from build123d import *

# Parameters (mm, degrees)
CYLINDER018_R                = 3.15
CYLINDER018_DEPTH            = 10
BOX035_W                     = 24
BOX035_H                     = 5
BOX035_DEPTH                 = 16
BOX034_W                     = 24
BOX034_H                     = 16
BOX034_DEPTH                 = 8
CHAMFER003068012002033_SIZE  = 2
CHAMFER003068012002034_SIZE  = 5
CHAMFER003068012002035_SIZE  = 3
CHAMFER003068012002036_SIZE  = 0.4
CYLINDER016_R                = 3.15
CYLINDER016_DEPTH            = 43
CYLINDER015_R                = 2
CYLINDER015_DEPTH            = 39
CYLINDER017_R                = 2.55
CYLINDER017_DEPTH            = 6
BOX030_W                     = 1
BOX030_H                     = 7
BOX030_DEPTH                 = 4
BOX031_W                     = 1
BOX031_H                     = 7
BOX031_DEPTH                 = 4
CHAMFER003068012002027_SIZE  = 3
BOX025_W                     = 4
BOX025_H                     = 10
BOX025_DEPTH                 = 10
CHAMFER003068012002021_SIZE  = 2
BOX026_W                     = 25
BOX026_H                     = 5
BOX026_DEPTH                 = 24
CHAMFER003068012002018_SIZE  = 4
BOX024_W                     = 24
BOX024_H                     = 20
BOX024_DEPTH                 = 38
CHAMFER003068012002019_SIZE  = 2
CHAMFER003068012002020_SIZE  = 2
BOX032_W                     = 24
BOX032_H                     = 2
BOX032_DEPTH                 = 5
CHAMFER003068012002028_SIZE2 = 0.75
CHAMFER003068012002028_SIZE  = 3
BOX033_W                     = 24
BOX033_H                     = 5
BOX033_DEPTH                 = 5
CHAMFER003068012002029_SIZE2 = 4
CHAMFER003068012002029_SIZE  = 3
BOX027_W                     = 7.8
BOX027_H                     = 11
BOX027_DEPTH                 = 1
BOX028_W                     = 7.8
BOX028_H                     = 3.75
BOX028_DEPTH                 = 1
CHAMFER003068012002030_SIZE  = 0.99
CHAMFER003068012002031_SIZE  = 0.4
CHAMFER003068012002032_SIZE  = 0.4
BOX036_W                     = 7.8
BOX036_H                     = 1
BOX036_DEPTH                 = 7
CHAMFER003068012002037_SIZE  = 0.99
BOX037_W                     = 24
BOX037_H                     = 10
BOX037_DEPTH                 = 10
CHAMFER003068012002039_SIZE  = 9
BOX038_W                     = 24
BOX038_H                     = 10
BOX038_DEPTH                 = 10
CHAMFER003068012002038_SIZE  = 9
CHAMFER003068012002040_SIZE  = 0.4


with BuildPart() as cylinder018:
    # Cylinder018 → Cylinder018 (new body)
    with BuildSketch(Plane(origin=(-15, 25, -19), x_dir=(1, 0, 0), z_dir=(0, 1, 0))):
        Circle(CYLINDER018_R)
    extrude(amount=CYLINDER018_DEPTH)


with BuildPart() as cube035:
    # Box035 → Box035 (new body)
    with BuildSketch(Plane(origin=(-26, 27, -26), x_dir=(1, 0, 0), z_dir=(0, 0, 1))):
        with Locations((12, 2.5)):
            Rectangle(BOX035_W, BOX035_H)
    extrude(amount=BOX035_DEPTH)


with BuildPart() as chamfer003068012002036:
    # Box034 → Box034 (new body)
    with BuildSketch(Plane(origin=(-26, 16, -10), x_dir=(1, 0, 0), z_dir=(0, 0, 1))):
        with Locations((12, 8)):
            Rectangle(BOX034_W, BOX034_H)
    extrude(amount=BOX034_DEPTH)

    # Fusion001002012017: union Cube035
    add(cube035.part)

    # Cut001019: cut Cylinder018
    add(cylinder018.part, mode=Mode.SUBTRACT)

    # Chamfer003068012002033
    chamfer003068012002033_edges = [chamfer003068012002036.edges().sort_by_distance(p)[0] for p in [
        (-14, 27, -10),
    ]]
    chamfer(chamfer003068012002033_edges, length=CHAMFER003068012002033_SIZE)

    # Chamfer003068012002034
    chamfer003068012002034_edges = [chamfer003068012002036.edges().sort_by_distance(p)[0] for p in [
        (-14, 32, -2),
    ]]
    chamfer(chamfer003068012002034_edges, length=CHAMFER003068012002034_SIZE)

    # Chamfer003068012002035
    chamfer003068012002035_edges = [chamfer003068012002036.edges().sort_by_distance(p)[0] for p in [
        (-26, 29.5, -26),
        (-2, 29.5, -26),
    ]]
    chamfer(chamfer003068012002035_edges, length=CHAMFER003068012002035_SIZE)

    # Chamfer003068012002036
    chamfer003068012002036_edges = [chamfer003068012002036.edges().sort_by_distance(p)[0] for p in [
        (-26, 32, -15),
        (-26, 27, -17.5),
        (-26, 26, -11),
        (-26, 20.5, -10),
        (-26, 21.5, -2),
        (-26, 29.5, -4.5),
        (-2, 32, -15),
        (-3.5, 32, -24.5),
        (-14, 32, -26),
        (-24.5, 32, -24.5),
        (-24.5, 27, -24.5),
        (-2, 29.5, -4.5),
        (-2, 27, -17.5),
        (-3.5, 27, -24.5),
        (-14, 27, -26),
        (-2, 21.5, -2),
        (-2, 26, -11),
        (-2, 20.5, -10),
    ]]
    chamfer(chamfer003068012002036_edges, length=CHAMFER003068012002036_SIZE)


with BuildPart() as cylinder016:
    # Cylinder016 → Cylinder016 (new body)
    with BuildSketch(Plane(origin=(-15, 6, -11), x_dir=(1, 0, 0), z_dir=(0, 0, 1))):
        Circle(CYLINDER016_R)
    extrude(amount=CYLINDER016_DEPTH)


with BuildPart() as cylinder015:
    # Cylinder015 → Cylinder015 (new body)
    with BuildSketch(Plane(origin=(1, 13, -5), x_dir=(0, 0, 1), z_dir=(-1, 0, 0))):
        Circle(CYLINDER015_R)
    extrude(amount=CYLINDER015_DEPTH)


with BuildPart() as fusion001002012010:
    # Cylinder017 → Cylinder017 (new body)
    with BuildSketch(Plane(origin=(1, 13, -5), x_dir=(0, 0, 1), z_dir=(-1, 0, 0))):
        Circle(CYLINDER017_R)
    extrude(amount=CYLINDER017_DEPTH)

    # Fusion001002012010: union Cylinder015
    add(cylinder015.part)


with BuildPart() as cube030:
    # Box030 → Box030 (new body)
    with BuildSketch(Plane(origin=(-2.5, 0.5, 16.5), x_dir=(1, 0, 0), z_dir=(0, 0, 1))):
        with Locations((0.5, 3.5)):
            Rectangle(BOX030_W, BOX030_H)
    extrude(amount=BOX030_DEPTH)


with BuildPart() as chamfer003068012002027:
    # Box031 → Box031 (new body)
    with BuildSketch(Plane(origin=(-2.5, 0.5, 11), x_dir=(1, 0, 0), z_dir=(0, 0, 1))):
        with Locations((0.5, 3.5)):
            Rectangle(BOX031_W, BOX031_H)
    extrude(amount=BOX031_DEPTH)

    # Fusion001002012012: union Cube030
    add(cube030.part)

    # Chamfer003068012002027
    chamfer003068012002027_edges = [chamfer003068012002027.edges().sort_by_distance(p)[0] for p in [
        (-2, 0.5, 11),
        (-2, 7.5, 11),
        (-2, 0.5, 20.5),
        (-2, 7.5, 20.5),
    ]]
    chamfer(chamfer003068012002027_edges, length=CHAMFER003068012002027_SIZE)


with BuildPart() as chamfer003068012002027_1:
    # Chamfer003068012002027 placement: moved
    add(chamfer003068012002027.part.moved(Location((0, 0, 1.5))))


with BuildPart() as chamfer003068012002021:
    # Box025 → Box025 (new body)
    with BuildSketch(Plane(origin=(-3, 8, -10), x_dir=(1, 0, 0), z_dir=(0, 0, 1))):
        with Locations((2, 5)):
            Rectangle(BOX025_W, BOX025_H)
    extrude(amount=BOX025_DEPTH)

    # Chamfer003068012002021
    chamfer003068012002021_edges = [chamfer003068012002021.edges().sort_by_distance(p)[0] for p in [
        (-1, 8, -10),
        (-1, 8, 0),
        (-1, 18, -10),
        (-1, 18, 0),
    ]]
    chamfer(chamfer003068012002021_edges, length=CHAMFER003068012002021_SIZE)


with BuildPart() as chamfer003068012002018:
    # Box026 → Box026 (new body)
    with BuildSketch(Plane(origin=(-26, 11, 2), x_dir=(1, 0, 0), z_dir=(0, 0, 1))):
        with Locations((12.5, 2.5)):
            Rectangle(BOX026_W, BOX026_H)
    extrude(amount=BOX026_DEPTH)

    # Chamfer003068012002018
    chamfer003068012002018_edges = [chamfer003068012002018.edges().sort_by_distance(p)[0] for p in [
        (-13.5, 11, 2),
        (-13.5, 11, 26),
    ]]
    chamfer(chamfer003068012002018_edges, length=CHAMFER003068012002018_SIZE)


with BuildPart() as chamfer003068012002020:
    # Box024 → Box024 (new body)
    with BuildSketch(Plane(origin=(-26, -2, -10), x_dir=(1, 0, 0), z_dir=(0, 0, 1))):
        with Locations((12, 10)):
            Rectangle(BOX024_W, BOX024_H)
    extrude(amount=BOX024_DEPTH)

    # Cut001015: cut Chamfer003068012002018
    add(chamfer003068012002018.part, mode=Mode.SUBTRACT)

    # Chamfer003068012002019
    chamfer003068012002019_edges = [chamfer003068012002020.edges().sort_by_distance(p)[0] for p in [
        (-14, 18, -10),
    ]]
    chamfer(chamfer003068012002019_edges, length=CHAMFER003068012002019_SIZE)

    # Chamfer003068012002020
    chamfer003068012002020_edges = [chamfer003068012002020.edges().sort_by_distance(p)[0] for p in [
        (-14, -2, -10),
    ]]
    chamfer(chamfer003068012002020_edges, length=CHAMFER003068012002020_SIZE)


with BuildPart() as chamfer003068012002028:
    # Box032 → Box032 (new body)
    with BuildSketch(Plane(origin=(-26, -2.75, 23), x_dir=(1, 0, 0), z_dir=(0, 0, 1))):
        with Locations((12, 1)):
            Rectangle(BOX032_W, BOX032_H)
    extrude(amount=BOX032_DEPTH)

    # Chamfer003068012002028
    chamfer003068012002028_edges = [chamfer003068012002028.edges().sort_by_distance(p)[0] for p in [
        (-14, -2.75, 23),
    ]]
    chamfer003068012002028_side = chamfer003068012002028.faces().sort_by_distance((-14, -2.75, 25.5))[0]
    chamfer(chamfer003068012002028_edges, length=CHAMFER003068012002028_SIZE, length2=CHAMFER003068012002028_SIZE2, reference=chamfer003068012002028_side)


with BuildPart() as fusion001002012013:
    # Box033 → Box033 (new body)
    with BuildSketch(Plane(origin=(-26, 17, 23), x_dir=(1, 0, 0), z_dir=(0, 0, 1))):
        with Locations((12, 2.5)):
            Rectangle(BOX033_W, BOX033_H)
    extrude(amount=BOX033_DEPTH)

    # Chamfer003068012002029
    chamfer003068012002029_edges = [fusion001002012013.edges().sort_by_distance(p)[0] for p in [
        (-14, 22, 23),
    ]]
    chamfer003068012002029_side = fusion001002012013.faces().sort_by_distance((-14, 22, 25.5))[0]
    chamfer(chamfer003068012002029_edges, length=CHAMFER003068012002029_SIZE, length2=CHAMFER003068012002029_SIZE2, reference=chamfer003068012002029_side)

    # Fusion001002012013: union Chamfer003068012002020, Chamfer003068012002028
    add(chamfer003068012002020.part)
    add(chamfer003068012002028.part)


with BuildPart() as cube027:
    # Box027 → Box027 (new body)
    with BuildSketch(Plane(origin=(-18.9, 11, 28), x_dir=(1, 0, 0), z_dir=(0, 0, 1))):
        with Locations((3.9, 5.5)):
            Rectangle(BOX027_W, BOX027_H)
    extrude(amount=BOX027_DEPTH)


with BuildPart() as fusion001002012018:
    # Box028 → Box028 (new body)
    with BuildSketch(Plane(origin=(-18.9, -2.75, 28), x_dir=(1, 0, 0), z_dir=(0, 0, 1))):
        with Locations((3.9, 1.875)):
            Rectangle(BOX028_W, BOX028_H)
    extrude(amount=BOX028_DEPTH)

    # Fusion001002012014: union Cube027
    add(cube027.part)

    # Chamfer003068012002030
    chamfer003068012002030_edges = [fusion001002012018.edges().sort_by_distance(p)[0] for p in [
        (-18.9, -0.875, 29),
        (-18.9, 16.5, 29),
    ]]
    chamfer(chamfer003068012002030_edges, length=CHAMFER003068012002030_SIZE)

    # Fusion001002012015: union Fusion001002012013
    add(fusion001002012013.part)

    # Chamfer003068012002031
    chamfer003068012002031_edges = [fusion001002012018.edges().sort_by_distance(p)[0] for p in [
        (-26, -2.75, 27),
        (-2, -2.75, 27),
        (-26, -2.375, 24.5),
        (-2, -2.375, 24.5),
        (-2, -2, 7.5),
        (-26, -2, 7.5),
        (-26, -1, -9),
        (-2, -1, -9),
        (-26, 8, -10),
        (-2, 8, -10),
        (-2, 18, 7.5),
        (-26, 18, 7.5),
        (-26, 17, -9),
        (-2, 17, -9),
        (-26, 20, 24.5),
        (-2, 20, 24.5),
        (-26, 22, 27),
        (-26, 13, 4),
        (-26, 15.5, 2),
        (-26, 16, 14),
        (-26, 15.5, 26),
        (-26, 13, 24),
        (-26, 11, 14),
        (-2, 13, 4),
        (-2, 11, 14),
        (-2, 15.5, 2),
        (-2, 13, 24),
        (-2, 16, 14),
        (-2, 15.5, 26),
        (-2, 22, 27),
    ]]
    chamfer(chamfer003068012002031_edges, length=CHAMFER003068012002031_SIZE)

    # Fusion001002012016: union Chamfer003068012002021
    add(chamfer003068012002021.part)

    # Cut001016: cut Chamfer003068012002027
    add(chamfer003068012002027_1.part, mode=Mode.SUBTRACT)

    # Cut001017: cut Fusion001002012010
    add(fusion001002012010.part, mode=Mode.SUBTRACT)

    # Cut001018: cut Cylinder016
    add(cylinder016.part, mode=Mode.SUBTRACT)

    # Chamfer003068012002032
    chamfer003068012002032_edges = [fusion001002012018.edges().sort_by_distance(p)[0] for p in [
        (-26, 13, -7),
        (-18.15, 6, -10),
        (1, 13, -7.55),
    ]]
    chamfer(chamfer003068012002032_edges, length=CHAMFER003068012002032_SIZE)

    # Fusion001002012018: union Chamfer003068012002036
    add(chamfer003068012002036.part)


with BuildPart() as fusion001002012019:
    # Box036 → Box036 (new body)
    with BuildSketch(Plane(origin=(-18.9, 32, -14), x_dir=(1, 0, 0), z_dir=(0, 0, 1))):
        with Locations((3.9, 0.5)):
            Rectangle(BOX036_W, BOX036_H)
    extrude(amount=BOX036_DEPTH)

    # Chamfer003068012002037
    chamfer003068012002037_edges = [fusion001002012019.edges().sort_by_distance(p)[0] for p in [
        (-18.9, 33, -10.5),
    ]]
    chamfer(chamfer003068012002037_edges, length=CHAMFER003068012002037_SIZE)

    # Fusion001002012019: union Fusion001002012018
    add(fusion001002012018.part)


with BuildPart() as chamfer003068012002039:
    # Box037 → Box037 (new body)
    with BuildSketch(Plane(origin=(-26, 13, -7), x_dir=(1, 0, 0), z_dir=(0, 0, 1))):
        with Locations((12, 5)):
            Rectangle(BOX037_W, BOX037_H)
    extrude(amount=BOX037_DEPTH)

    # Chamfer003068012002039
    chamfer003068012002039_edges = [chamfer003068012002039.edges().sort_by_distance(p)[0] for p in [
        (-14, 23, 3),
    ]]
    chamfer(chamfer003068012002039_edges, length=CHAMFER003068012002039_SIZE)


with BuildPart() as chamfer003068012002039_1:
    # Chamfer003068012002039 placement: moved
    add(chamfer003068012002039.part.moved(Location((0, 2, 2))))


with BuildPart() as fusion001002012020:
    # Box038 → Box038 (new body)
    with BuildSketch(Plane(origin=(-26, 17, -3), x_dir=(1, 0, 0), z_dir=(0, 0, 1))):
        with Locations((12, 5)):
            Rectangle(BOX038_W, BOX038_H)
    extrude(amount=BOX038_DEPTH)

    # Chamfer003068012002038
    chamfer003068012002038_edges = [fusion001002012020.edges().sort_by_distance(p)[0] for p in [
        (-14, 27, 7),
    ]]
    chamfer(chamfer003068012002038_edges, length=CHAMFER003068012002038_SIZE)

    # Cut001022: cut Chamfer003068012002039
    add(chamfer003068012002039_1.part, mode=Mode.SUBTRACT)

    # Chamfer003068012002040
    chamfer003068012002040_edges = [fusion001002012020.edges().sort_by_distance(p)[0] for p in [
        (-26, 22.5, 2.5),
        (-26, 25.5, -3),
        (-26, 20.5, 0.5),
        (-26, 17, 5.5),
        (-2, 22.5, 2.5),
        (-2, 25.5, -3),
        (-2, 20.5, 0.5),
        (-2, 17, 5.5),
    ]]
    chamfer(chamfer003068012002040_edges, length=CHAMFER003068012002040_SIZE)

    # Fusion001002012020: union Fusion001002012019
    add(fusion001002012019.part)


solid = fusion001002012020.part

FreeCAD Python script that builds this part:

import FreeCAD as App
import Part
import Sketcher

V = App.Vector


def edges_at(feature, points):
    """Names of the edges that pass closest to the given points."""
    edges = feature.Shape.Edges
    near = lambda p: min(range(len(edges)), key=lambda i: edges[i].distToShape(Part.Vertex(*p))[0])
    return sorted({f"Edge{near(p) + 1}" for p in points})

doc = App.newDocument("Part")
params = doc.addObject("Spreadsheet::Sheet", "Params")
for row, (alias, value) in enumerate([
    ("sketch1_diameter", "6.3 mm"),
    ("pad1_length", "10 mm"),
    ("sketch2_width", "24 mm"),
    ("sketch2_height", "5 mm"),
    ("pad2_length", "16 mm"),
    ("sketch3_width", "24 mm"),
    ("sketch3_height", "16 mm"),
    ("pad3_length", "8 mm"),
    ("chamfer_size", "2 mm"),
    ("chamfer2_size", "5 mm"),
    ("chamfer3_size", "3 mm"),
    ("chamfer4_size", "0.4 mm"),
    ("sketch4_diameter", "6.3 mm"),
    ("pad4_length", "43 mm"),
    ("sketch5_diameter", "4 mm"),
    ("pad5_length", "39 mm"),
    ("sketch6_diameter", "5.1 mm"),
    ("pad6_length", "6 mm"),
    ("sketch7_width", "1 mm"),
    ("sketch7_height", "7 mm"),
    ("pad7_length", "4 mm"),
    ("sketch8_width", "1 mm"),
    ("sketch8_height", "7 mm"),
    ("pad8_length", "4 mm"),
    ("chamfer5_size", "3 mm"),
    ("sketch9_width", "4 mm"),
    ("sketch9_height", "10 mm"),
    ("pad9_length", "10 mm"),
    ("chamfer6_size", "2 mm"),
    ("sketch10_width", "25 mm"),
    ("sketch10_height", "5 mm"),
    ("pad10_length", "24 mm"),
    ("chamfer7_size", "4 mm"),
    ("sketch11_width", "24 mm"),
    ("sketch11_height", "20 mm"),
    ("pad11_length", "38 mm"),
    ("chamfer8_size", "2 mm"),
    ("chamfer9_size", "2 mm"),
    ("sketch12_width", "24 mm"),
    ("sketch12_height", "2 mm"),
    ("pad12_length", "5 mm"),
    ("chamfer10_size", "3 mm"),
    ("chamfer10_size2", "0.75 mm"),
    ("sketch13_width", "24 mm"),
    ("sketch13_height", "5 mm"),
    ("pad13_length", "5 mm"),
    ("chamfer11_size", "3 mm"),
    ("chamfer11_size2", "4 mm"),
    ("sketch14_height", "11 mm"),
    ("sketch14_width", "7.8 mm"),
    ("pad14_length", "1 mm"),
    ("sketch15_width", "7.8 mm"),
    ("sketch15_height", "3.75 mm"),
    ("pad15_length", "1 mm"),
    ("chamfer12_size", "0.99 mm"),
    ("chamfer13_size", "0.4 mm"),
    ("chamfer14_size", "0.4 mm"),
    ("sketch16_height", "1 mm"),
    ("sketch16_width", "7.8 mm"),
    ("pad16_length", "7 mm"),
    ("chamfer15_size", "0.99 mm"),
    ("sketch17_width", "24 mm"),
    ("sketch17_height", "10 mm"),
    ("pad17_length", "10 mm"),
    ("chamfer16_size", "9 mm"),
    ("sketch18_width", "24 mm"),
    ("sketch18_height", "10 mm"),
    ("pad18_length", "10 mm"),
    ("chamfer17_size", "9 mm"),
    ("chamfer18_size", "0.4 mm"),
], start=1):
    params.set(f"A{row}", alias)
    params.set(f"B{row}", "=" + value)
    params.setAlias(f"B{row}", alias)

body = doc.addObject("PartDesign::Body", "Body")

sketch1 = body.newObject("Sketcher::SketchObject", "Sketch")
sketch1.AttachmentSupport = (doc.getObject("XZ_Plane"), [""])
sketch1.MapMode = "FlatFace"
sketch1.AttachmentOffset = App.Placement(V(0, 0, -25), App.Rotation())
sketch1.addGeometry(Part.Circle(V(-15, -19, 0), V(0, 0, 1), 3.15), False)
sketch1.addConstraint(Sketcher.Constraint("Diameter", 0, 6.3))
sketch1.addConstraint(Sketcher.Constraint("DistanceX", 0, 3, -1, 1, 15.0))
sketch1.addConstraint(Sketcher.Constraint("DistanceY", 0, 3, -1, 1, 19.0))
sketch1.setExpression("Constraints[0]", "Params.sketch1_diameter")
pad1 = body.newObject("PartDesign::Pad", "Pad")
pad1.Profile = sketch1
pad1.setExpression("Length", "Params.pad1_length")
pad1.Reversed = True
body2 = doc.addObject("PartDesign::Body", "Body001")

sketch2 = body2.newObject("Sketcher::SketchObject", "Sketch001")
sketch2.AttachmentSupport = (doc.getObject("XY_Plane001"), [""])
sketch2.MapMode = "FlatFace"
sketch2.AttachmentOffset = App.Placement(V(0, 0, -26), App.Rotation())
sketch2.addGeometry(Part.LineSegment(V(-26, 32, 0), V(-26, 27, 0)), False)
sketch2.addGeometry(Part.LineSegment(V(-26, 27, 0), V(-2, 27, 0)), False)
sketch2.addGeometry(Part.LineSegment(V(-2, 27, 0), V(-2, 32, 0)), False)
sketch2.addGeometry(Part.LineSegment(V(-2, 32, 0), V(-26, 32, 0)), False)
sketch2.addConstraint(Sketcher.Constraint("Coincident", 0, 2, 1, 1))
sketch2.addConstraint(Sketcher.Constraint("Coincident", 1, 2, 2, 1))
sketch2.addConstraint(Sketcher.Constraint("Coincident", 2, 2, 3, 1))
sketch2.addConstraint(Sketcher.Constraint("Coincident", 3, 2, 0, 1))
sketch2.addConstraint(Sketcher.Constraint("Vertical", 0))
sketch2.addConstraint(Sketcher.Constraint("Horizontal", 1))
sketch2.addConstraint(Sketcher.Constraint("Vertical", 2))
sketch2.addConstraint(Sketcher.Constraint("Horizontal", 3))
sketch2.addConstraint(Sketcher.Constraint("DistanceX", 1, 1, 1, 2, 24.0))
sketch2.addConstraint(Sketcher.Constraint("DistanceY", 0, 2, 0, 1, 5.0))
sketch2.addConstraint(Sketcher.Constraint("DistanceX", 0, 2, -1, 1, 26.0))
sketch2.addConstraint(Sketcher.Constraint("DistanceY", -1, 1, 0, 2, 27.0))
sketch2.setExpression("Constraints[8]", "Params.sketch2_width")
sketch2.setExpression("Constraints[9]", "Params.sketch2_height")
pad2 = body2.newObject("PartDesign::Pad", "Pad001")
pad2.Profile = sketch2
pad2.setExpression("Length", "Params.pad2_length")
body3 = doc.addObject("PartDesign::Body", "Body002")

sketch3 = body3.newObject("Sketcher::SketchObject", "Sketch002")
sketch3.AttachmentSupport = (doc.getObject("XY_Plane002"), [""])
sketch3.MapMode = "FlatFace"
sketch3.AttachmentOffset = App.Placement(V(0, 0, -10), App.Rotation())
sketch3.addGeometry(Part.LineSegment(V(-26, 32, 0), V(-26, 16, 0)), False)
sketch3.addGeometry(Part.LineSegment(V(-26, 16, 0), V(-2, 16, 0)), False)
sketch3.addGeometry(Part.LineSegment(V(-2, 16, 0), V(-2, 32, 0)), False)
sketch3.addGeometry(Part.LineSegment(V(-2, 32, 0), V(-26, 32, 0)), False)
sketch3.addConstraint(Sketcher.Constraint("Coincident", 0, 2, 1, 1))
sketch3.addConstraint(Sketcher.Constraint("Coincident", 1, 2, 2, 1))
sketch3.addConstraint(Sketcher.Constraint("Coincident", 2, 2, 3, 1))
sketch3.addConstraint(Sketcher.Constraint("Coincident", 3, 2, 0, 1))
sketch3.addConstraint(Sketcher.Constraint("Vertical", 0))
sketch3.addConstraint(Sketcher.Constraint("Horizontal", 1))
sketch3.addConstraint(Sketcher.Constraint("Vertical", 2))
sketch3.addConstraint(Sketcher.Constraint("Horizontal", 3))
sketch3.addConstraint(Sketcher.Constraint("DistanceX", 1, 1, 1, 2, 24.0))
sketch3.addConstraint(Sketcher.Constraint("DistanceY", 0, 2, 0, 1, 16.0))
sketch3.addConstraint(Sketcher.Constraint("DistanceX", 0, 2, -1, 1, 26.0))
sketch3.addConstraint(Sketcher.Constraint("DistanceY", -1, 1, 0, 2, 16.0))
sketch3.setExpression("Constraints[8]", "Params.sketch3_width")
sketch3.setExpression("Constraints[9]", "Params.sketch3_height")
pad3 = body3.newObject("PartDesign::Pad", "Pad002")
pad3.Profile = sketch3
pad3.setExpression("Length", "Params.pad3_length")
doc.recompute()

boolean = body3.newObject("PartDesign::Boolean", "Boolean")
boolean.Type = "Fuse"
boolean.addObjects([body2])
doc.recompute()

boolean2 = body3.newObject("PartDesign::Boolean", "Boolean001")
boolean2.Type = "Cut"
boolean2.addObjects([body])
doc.recompute()

chamfer = body3.newObject("PartDesign::Chamfer", "Chamfer")
chamfer.Base = (boolean2, edges_at(boolean2, [(-14, 27, -10)]))
chamfer.setExpression("Size", "Params.chamfer_size")
doc.recompute()

chamfer2 = body3.newObject("PartDesign::Chamfer", "Chamfer001")
chamfer2.Base = (chamfer, edges_at(chamfer, [(-14, 32, -2)]))
chamfer2.setExpression("Size", "Params.chamfer2_size")
doc.recompute()

chamfer3 = body3.newObject("PartDesign::Chamfer", "Chamfer002")
chamfer3.Base = (chamfer2, edges_at(chamfer2, [(-26, 29.5, -26), (-2, 29.5, -26)]))
chamfer3.setExpression("Size", "Params.chamfer3_size")
doc.recompute()

chamfer4 = body3.newObject("PartDesign::Chamfer", "Chamfer003")
chamfer4.Base = (chamfer3, edges_at(chamfer3, [
    (-26, 32, -15),
    (-26, 27, -17.5),
    (-26, 26, -11),
    (-26, 20.5, -10),
    (-26, 21.5, -2),
    (-26, 29.5, -4.5),
    (-2, 32, -15),
    (-3.5, 32, -24.5),
    (-14, 32, -26),
    (-24.5, 32, -24.5),
    (-24.5, 27, -24.5),
    (-2, 29.5, -4.5),
    (-2, 27, -17.5),
    (-3.5, 27, -24.5),
    (-14, 27, -26),
    (-2, 21.5, -2),
    (-2, 26, -11),
    (-2, 20.5, -10),
]))
chamfer4.setExpression("Size", "Params.chamfer4_size")
body4 = doc.addObject("PartDesign::Body", "Body003")

sketch4 = body4.newObject("Sketcher::SketchObject", "Sketch003")
sketch4.AttachmentSupport = (doc.getObject("XY_Plane003"), [""])
sketch4.MapMode = "FlatFace"
sketch4.AttachmentOffset = App.Placement(V(0, 0, -11), App.Rotation())
sketch4.addGeometry(Part.Circle(V(-15, 6, 0), V(0, 0, 1), 3.15), False)
sketch4.addConstraint(Sketcher.Constraint("Diameter", 0, 6.3))
sketch4.addConstraint(Sketcher.Constraint("DistanceX", 0, 3, -1, 1, 15.0))
sketch4.addConstraint(Sketcher.Constraint("DistanceY", -1, 1, 0, 3, 6.0))
sketch4.setExpression("Constraints[0]", "Params.sketch4_diameter")
pad4 = body4.newObject("PartDesign::Pad", "Pad003")
pad4.Profile = sketch4
pad4.setExpression("Length", "Params.pad4_length")
body5 = doc.addObject("PartDesign::Body", "Body004")

sketch5 = body5.newObject("Sketcher::SketchObject", "Sketch004")
sketch5.AttachmentSupport = (doc.getObject("YZ_Plane004"), [""])
sketch5.MapMode = "FlatFace"
sketch5.AttachmentOffset = App.Placement(V(0, 0, 1), App.Rotation())
sketch5.addGeometry(Part.Circle(V(13, -5, 0), V(0, 0, 1), 2), False)
sketch5.addConstraint(Sketcher.Constraint("Diameter", 0, 4.0))
sketch5.addConstraint(Sketcher.Constraint("DistanceX", -1, 1, 0, 3, 13.0))
sketch5.addConstraint(Sketcher.Constraint("DistanceY", 0, 3, -1, 1, 5.0))
sketch5.setExpression("Constraints[0]", "Params.sketch5_diameter")
pad5 = body5.newObject("PartDesign::Pad", "Pad004")
pad5.Profile = sketch5
pad5.setExpression("Length", "Params.pad5_length")
pad5.Reversed = True
body6 = doc.addObject("PartDesign::Body", "Body005")

sketch6 = body6.newObject("Sketcher::SketchObject", "Sketch005")
sketch6.AttachmentSupport = (doc.getObject("YZ_Plane005"), [""])
sketch6.MapMode = "FlatFace"
sketch6.AttachmentOffset = App.Placement(V(0, 0, 1), App.Rotation())
sketch6.addGeometry(Part.Circle(V(13, -5, 0), V(0, 0, 1), 2.55), False)
sketch6.addConstraint(Sketcher.Constraint("Diameter", 0, 5.1))
sketch6.addConstraint(Sketcher.Constraint("DistanceX", -1, 1, 0, 3, 13.0))
sketch6.addConstraint(Sketcher.Constraint("DistanceY", 0, 3, -1, 1, 5.0))
sketch6.setExpression("Constraints[0]", "Params.sketch6_diameter")
pad6 = body6.newObject("PartDesign::Pad", "Pad005")
pad6.Profile = sketch6
pad6.setExpression("Length", "Params.pad6_length")
pad6.Reversed = True
doc.recompute()

boolean3 = body6.newObject("PartDesign::Boolean", "Boolean002")
boolean3.Type = "Fuse"
boolean3.addObjects([body5])
body7 = doc.addObject("PartDesign::Body", "Body006")

sketch7 = body7.newObject("Sketcher::SketchObject", "Sketch006")
sketch7.AttachmentSupport = (doc.getObject("XY_Plane006"), [""])
sketch7.MapMode = "FlatFace"
sketch7.AttachmentOffset = App.Placement(V(0, 0, 16.5), App.Rotation())
sketch7.addGeometry(Part.LineSegment(V(-2.5, 7.5, 0), V(-2.5, 0.5, 0)), False)
sketch7.addGeometry(Part.LineSegment(V(-2.5, 0.5, 0), V(-1.5, 0.5, 0)), False)
sketch7.addGeometry(Part.LineSegment(V(-1.5, 0.5, 0), V(-1.5, 7.5, 0)), False)
sketch7.addGeometry(Part.LineSegment(V(-1.5, 7.5, 0), V(-2.5, 7.5, 0)), False)
sketch7.addConstraint(Sketcher.Constraint("Coincident", 0, 2, 1, 1))
sketch7.addConstraint(Sketcher.Constraint("Coincident", 1, 2, 2, 1))
sketch7.addConstraint(Sketcher.Constraint("Coincident", 2, 2, 3, 1))
sketch7.addConstraint(Sketcher.Constraint("Coincident", 3, 2, 0, 1))
sketch7.addConstraint(Sketcher.Constraint("Vertical", 0))
sketch7.addConstraint(Sketcher.Constraint("Horizontal", 1))
sketch7.addConstraint(Sketcher.Constraint("Vertical", 2))
sketch7.addConstraint(Sketcher.Constraint("Horizontal", 3))
sketch7.addConstraint(Sketcher.Constraint("DistanceX", 1, 1, 1, 2, 1.0))
sketch7.addConstraint(Sketcher.Constraint("DistanceY", 0, 2, 0, 1, 7.0))
sketch7.addConstraint(Sketcher.Constraint("DistanceX", 0, 2, -1, 1, 2.5))
sketch7.addConstraint(Sketcher.Constraint("DistanceY", -1, 1, 0, 2, 0.5))
sketch7.setExpression("Constraints[8]", "Params.sketch7_width")
sketch7.setExpression("Constraints[9]", "Params.sketch7_height")
pad7 = body7.newObject("PartDesign::Pad", "Pad006")
pad7.Profile = sketch7
pad7.setExpression("Length", "Params.pad7_length")
body8 = doc.addObject("PartDesign::Body", "Body007")
body8.AllowCompound = True

sketch8 = body8.newObject("Sketcher::SketchObject", "Sketch007")
sketch8.AttachmentSupport = (doc.getObject("XY_Plane007"), [""])
sketch8.MapMode = "FlatFace"
sketch8.AttachmentOffset = App.Placement(V(0, 0, 11), App.Rotation())
sketch8.addGeometry(Part.LineSegment(V(-2.5, 7.5, 0), V(-2.5, 0.5, 0)), False)
sketch8.addGeometry(Part.LineSegment(V(-2.5, 0.5, 0), V(-1.5, 0.5, 0)), False)
sketch8.addGeometry(Part.LineSegment(V(-1.5, 0.5, 0), V(-1.5, 7.5, 0)), False)
sketch8.addGeometry(Part.LineSegment(V(-1.5, 7.5, 0), V(-2.5, 7.5, 0)), False)
sketch8.addConstraint(Sketcher.Constraint("Coincident", 0, 2, 1, 1))
sketch8.addConstraint(Sketcher.Constraint("Coincident", 1, 2, 2, 1))
sketch8.addConstraint(Sketcher.Constraint("Coincident", 2, 2, 3, 1))
sketch8.addConstraint(Sketcher.Constraint("Coincident", 3, 2, 0, 1))
sketch8.addConstraint(Sketcher.Constraint("Vertical", 0))
sketch8.addConstraint(Sketcher.Constraint("Horizontal", 1))
sketch8.addConstraint(Sketcher.Constraint("Vertical", 2))
sketch8.addConstraint(Sketcher.Constraint("Horizontal", 3))
sketch8.addConstraint(Sketcher.Constraint("DistanceX", 1, 1, 1, 2, 1.0))
sketch8.addConstraint(Sketcher.Constraint("DistanceY", 0, 2, 0, 1, 7.0))
sketch8.addConstraint(Sketcher.Constraint("DistanceX", 0, 2, -1, 1, 2.5))
sketch8.addConstraint(Sketcher.Constraint("DistanceY", -1, 1, 0, 2, 0.5))
sketch8.setExpression("Constraints[8]", "Params.sketch8_width")
sketch8.setExpression("Constraints[9]", "Params.sketch8_height")
pad8 = body8.newObject("PartDesign::Pad", "Pad007")
pad8.Profile = sketch8
pad8.setExpression("Length", "Params.pad8_length")
doc.recompute()

boolean4 = body8.newObject("PartDesign::Boolean", "Boolean003")
boolean4.Type = "Fuse"
boolean4.addObjects([body7])
doc.recompute()

chamfer5 = body8.newObject("PartDesign::Chamfer", "Chamfer004")
chamfer5.Base = (boolean4, edges_at(boolean4, [
    (-2, 0.5, 11),
    (-2, 7.5, 11),
    (-2, 0.5, 20.5),
    (-2, 7.5, 20.5),
]))
chamfer5.setExpression("Size", "Params.chamfer5_size")
body9 = doc.addObject("PartDesign::Body", "Body008")
body9.AllowCompound = True
doc.recompute()

body8.Placement = App.Placement(V(0, 0, 1.5), App.Rotation(V(0, 0, 1), 0))
boolean5 = body9.newObject("PartDesign::Boolean", "Boolean004")
boolean5.Type = "Fuse"
boolean5.addObjects([body8])
body10 = doc.addObject("PartDesign::Body", "Body009")

sketch9 = body10.newObject("Sketcher::SketchObject", "Sketch008")
sketch9.AttachmentSupport = (doc.getObject("XY_Plane009"), [""])
sketch9.MapMode = "FlatFace"
sketch9.AttachmentOffset = App.Placement(V(0, 0, -10), App.Rotation())
sketch9.addGeometry(Part.LineSegment(V(-3, 18, 0), V(-3, 8, 0)), False)
sketch9.addGeometry(Part.LineSegment(V(-3, 8, 0), V(1, 8, 0)), False)
sketch9.addGeometry(Part.LineSegment(V(1, 8, 0), V(1, 18, 0)), False)
sketch9.addGeometry(Part.LineSegment(V(1, 18, 0), V(-3, 18, 0)), False)
sketch9.addConstraint(Sketcher.Constraint("Coincident", 0, 2, 1, 1))
sketch9.addConstraint(Sketcher.Constraint("Coincident", 1, 2, 2, 1))
sketch9.addConstraint(Sketcher.Constraint("Coincident", 2, 2, 3, 1))
sketch9.addConstraint(Sketcher.Constraint("Coincident", 3, 2, 0, 1))
sketch9.addConstraint(Sketcher.Constraint("Vertical", 0))
sketch9.addConstraint(Sketcher.Constraint("Horizontal", 1))
sketch9.addConstraint(Sketcher.Constraint("Vertical", 2))
sketch9.addConstraint(Sketcher.Constraint("Horizontal", 3))
sketch9.addConstraint(Sketcher.Constraint("DistanceX", 1, 1, 1, 2, 4.0))
sketch9.addConstraint(Sketcher.Constraint("DistanceY", 0, 2, 0, 1, 10.0))
sketch9.addConstraint(Sketcher.Constraint("DistanceX", 0, 2, -1, 1, 3.0))
sketch9.addConstraint(Sketcher.Constraint("DistanceY", -1, 1, 0, 2, 8.0))
sketch9.setExpression("Constraints[8]", "Params.sketch9_width")
sketch9.setExpression("Constraints[9]", "Params.sketch9_height")
pad9 = body10.newObject("PartDesign::Pad", "Pad008")
pad9.Profile = sketch9
pad9.setExpression("Length", "Params.pad9_length")
doc.recompute()

chamfer6 = body10.newObject("PartDesign::Chamfer", "Chamfer005")
chamfer6.Base = (pad9, edges_at(pad9, [
    (-1, 8, -10),
    (-1, 8, 0),
    (-1, 18, -10),
    (-1, 18, 0),
]))
chamfer6.setExpression("Size", "Params.chamfer6_size")
body11 = doc.addObject("PartDesign::Body", "Body010")

sketch10 = body11.newObject("Sketcher::SketchObject", "Sketch009")
sketch10.AttachmentSupport = (doc.getObject("XY_Plane010"), [""])
sketch10.MapMode = "FlatFace"
sketch10.AttachmentOffset = App.Placement(V(0, 0, 2), App.Rotation())
sketch10.addGeometry(Part.LineSegment(V(-26, 16, 0), V(-26, 11, 0)), False)
sketch10.addGeometry(Part.LineSegment(V(-26, 11, 0), V(-1, 11, 0)), False)
sketch10.addGeometry(Part.LineSegment(V(-1, 11, 0), V(-1, 16, 0)), False)
sketch10.addGeometry(Part.LineSegment(V(-1, 16, 0), V(-26, 16, 0)), False)
sketch10.addConstraint(Sketcher.Constraint("Coincident", 0, 2, 1, 1))
sketch10.addConstraint(Sketcher.Constraint("Coincident", 1, 2, 2, 1))
sketch10.addConstraint(Sketcher.Constraint("Coincident", 2, 2, 3, 1))
sketch10.addConstraint(Sketcher.Constraint("Coincident", 3, 2, 0, 1))
sketch10.addConstraint(Sketcher.Constraint("Vertical", 0))
sketch10.addConstraint(Sketcher.Constraint("Horizontal", 1))
sketch10.addConstraint(Sketcher.Constraint("Vertical", 2))
sketch10.addConstraint(Sketcher.Constraint("Horizontal", 3))
sketch10.addConstraint(Sketcher.Constraint("DistanceX", 1, 1, 1, 2, 25.0))
sketch10.addConstraint(Sketcher.Constraint("DistanceY", 0, 2, 0, 1, 5.0))
sketch10.addConstraint(Sketcher.Constraint("DistanceX", 0, 2, -1, 1, 26.0))
sketch10.addConstraint(Sketcher.Constraint("DistanceY", -1, 1, 0, 2, 11.0))
sketch10.setExpression("Constraints[8]", "Params.sketch10_width")
sketch10.setExpression("Constraints[9]", "Params.sketch10_height")
pad10 = body11.newObject("PartDesign::Pad", "Pad009")
pad10.Profile = sketch10
pad10.setExpression("Length", "Params.pad10_length")
doc.recompute()

chamfer7 = body11.newObject("PartDesign::Chamfer", "Chamfer006")
chamfer7.Base = (pad10, edges_at(pad10, [(-13.5, 11, 2), (-13.5, 11, 26)]))
chamfer7.setExpression("Size", "Params.chamfer7_size")
body12 = doc.addObject("PartDesign::Body", "Body011")

sketch11 = body12.newObject("Sketcher::SketchObject", "Sketch010")
sketch11.AttachmentSupport = (doc.getObject("XY_Plane011"), [""])
sketch11.MapMode = "FlatFace"
sketch11.AttachmentOffset = App.Placement(V(0, 0, -10), App.Rotation())
sketch11.addGeometry(Part.LineSegment(V(-26, 18, 0), V(-26, -2, 0)), False)
sketch11.addGeometry(Part.LineSegment(V(-26, -2, 0), V(-2, -2, 0)), False)
sketch11.addGeometry(Part.LineSegment(V(-2, -2, 0), V(-2, 18, 0)), False)
sketch11.addGeometry(Part.LineSegment(V(-2, 18, 0), V(-26, 18, 0)), False)
sketch11.addConstraint(Sketcher.Constraint("Coincident", 0, 2, 1, 1))
sketch11.addConstraint(Sketcher.Constraint("Coincident", 1, 2, 2, 1))
sketch11.addConstraint(Sketcher.Constraint("Coincident", 2, 2, 3, 1))
sketch11.addConstraint(Sketcher.Constraint("Coincident", 3, 2, 0, 1))
sketch11.addConstraint(Sketcher.Constraint("Vertical", 0))
sketch11.addConstraint(Sketcher.Constraint("Horizontal", 1))
sketch11.addConstraint(Sketcher.Constraint("Vertical", 2))
sketch11.addConstraint(Sketcher.Constraint("Horizontal", 3))
sketch11.addConstraint(Sketcher.Constraint("DistanceX", 1, 1, 1, 2, 24.0))
sketch11.addConstraint(Sketcher.Constraint("DistanceY", 0, 2, 0, 1, 20.0))
sketch11.addConstraint(Sketcher.Constraint("DistanceX", 0, 2, -1, 1, 26.0))
sketch11.addConstraint(Sketcher.Constraint("DistanceY", 0, 2, -1, 1, 2.0))
sketch11.setExpression("Constraints[8]", "Params.sketch11_width")
sketch11.setExpression("Constraints[9]", "Params.sketch11_height")
pad11 = body12.newObject("PartDesign::Pad", "Pad010")
pad11.Profile = sketch11
pad11.setExpression("Length", "Params.pad11_length")
doc.recompute()

boolean6 = body12.newObject("PartDesign::Boolean", "Boolean005")
boolean6.Type = "Cut"
boolean6.addObjects([body11])
doc.recompute()

chamfer8 = body12.newObject("PartDesign::Chamfer", "Chamfer007")
chamfer8.Base = (boolean6, edges_at(boolean6, [(-14, 18, -10)]))
chamfer8.setExpression("Size", "Params.chamfer8_size")
doc.recompute()

chamfer9 = body12.newObject("PartDesign::Chamfer", "Chamfer008")
chamfer9.Base = (chamfer8, edges_at(chamfer8, [(-14, -2, -10)]))
chamfer9.setExpression("Size", "Params.chamfer9_size")
body13 = doc.addObject("PartDesign::Body", "Body012")

sketch12 = body13.newObject("Sketcher::SketchObject", "Sketch011")
sketch12.AttachmentSupport = (doc.getObject("XY_Plane012"), [""])
sketch12.MapMode = "FlatFace"
sketch12.AttachmentOffset = App.Placement(V(0, 0, 23), App.Rotation())
sketch12.addGeometry(Part.LineSegment(V(-26, -0.75, 0), V(-26, -2.75, 0)), False)
sketch12.addGeometry(Part.LineSegment(V(-26, -2.75, 0), V(-2, -2.75, 0)), False)
sketch12.addGeometry(Part.LineSegment(V(-2, -2.75, 0), V(-2, -0.75, 0)), False)
sketch12.addGeometry(Part.LineSegment(V(-2, -0.75, 0), V(-26, -0.75, 0)), False)
sketch12.addConstraint(Sketcher.Constraint("Coincident", 0, 2, 1, 1))
sketch12.addConstraint(Sketcher.Constraint("Coincident", 1, 2, 2, 1))
sketch12.addConstraint(Sketcher.Constraint("Coincident", 2, 2, 3, 1))
sketch12.addConstraint(Sketcher.Constraint("Coincident", 3, 2, 0, 1))
sketch12.addConstraint(Sketcher.Constraint("Vertical", 0))
sketch12.addConstraint(Sketcher.Constraint("Horizontal", 1))
sketch12.addConstraint(Sketcher.Constraint("Vertical", 2))
sketch12.addConstraint(Sketcher.Constraint("Horizontal", 3))
sketch12.addConstraint(Sketcher.Constraint("DistanceX", 1, 1, 1, 2, 24.0))
sketch12.addConstraint(Sketcher.Constraint("DistanceY", 0, 2, 0, 1, 2.0))
sketch12.addConstraint(Sketcher.Constraint("DistanceX", 0, 2, -1, 1, 26.0))
sketch12.addConstraint(Sketcher.Constraint("DistanceY", 0, 2, -1, 1, 2.75))
sketch12.setExpression("Constraints[8]", "Params.sketch12_width")
sketch12.setExpression("Constraints[9]", "Params.sketch12_height")
pad12 = body13.newObject("PartDesign::Pad", "Pad011")
pad12.Profile = sketch12
pad12.setExpression("Length", "Params.pad12_length")
doc.recompute()

chamfer10 = body13.newObject("PartDesign::Chamfer", "Chamfer009")
chamfer10.Base = (pad12, edges_at(pad12, [(-14, -2.75, 23)]))
chamfer10.ChamferType = "Two distances"
chamfer10.setExpression("Size", "Params.chamfer10_size")
chamfer10.setExpression("Size2", "Params.chamfer10_size2")
body14 = doc.addObject("PartDesign::Body", "Body013")

sketch13 = body14.newObject("Sketcher::SketchObject", "Sketch012")
sketch13.AttachmentSupport = (doc.getObject("XY_Plane013"), [""])
sketch13.MapMode = "FlatFace"
sketch13.AttachmentOffset = App.Placement(V(0, 0, 23), App.Rotation())
sketch13.addGeometry(Part.LineSegment(V(-26, 22, 0), V(-26, 17, 0)), False)
sketch13.addGeometry(Part.LineSegment(V(-26, 17, 0), V(-2, 17, 0)), False)
sketch13.addGeometry(Part.LineSegment(V(-2, 17, 0), V(-2, 22, 0)), False)
sketch13.addGeometry(Part.LineSegment(V(-2, 22, 0), V(-26, 22, 0)), False)
sketch13.addConstraint(Sketcher.Constraint("Coincident", 0, 2, 1, 1))
sketch13.addConstraint(Sketcher.Constraint("Coincident", 1, 2, 2, 1))
sketch13.addConstraint(Sketcher.Constraint("Coincident", 2, 2, 3, 1))
sketch13.addConstraint(Sketcher.Constraint("Coincident", 3, 2, 0, 1))
sketch13.addConstraint(Sketcher.Constraint("Vertical", 0))
sketch13.addConstraint(Sketcher.Constraint("Horizontal", 1))
sketch13.addConstraint(Sketcher.Constraint("Vertical", 2))
sketch13.addConstraint(Sketcher.Constraint("Horizontal", 3))
sketch13.addConstraint(Sketcher.Constraint("DistanceX", 1, 1, 1, 2, 24.0))
sketch13.addConstraint(Sketcher.Constraint("DistanceY", 0, 2, 0, 1, 5.0))
sketch13.addConstraint(Sketcher.Constraint("DistanceX", 0, 2, -1, 1, 26.0))
sketch13.addConstraint(Sketcher.Constraint("DistanceY", -1, 1, 0, 2, 17.0))
sketch13.setExpression("Constraints[8]", "Params.sketch13_width")
sketch13.setExpression("Constraints[9]", "Params.sketch13_height")
pad13 = body14.newObject("PartDesign::Pad", "Pad012")
pad13.Profile = sketch13
pad13.setExpression("Length", "Params.pad13_length")
doc.recompute()

chamfer11 = body14.newObject("PartDesign::Chamfer", "Chamfer010")
chamfer11.Base = (pad13, edges_at(pad13, [(-14, 22, 23)]))
chamfer11.ChamferType = "Two distances"
chamfer11.setExpression("Size", "Params.chamfer11_size")
chamfer11.setExpression("Size2", "Params.chamfer11_size2")
doc.recompute()

boolean7 = body14.newObject("PartDesign::Boolean", "Boolean006")
boolean7.Type = "Fuse"
boolean7.addObjects([body12])
doc.recompute()

boolean8 = body14.newObject("PartDesign::Boolean", "Boolean007")
boolean8.Type = "Fuse"
boolean8.addObjects([body13])
body15 = doc.addObject("PartDesign::Body", "Body014")

sketch14 = body15.newObject("Sketcher::SketchObject", "Sketch013")
sketch14.AttachmentSupport = (doc.getObject("XY_Plane014"), [""])
sketch14.MapMode = "FlatFace"
sketch14.AttachmentOffset = App.Placement(V(0, 0, 28), App.Rotation())
sketch14.addGeometry(Part.LineSegment(V(-18.9, 22, 0), V(-18.9, 11, 0)), False)
sketch14.addGeometry(Part.LineSegment(V(-18.9, 11, 0), V(-11.1, 11, 0)), False)
sketch14.addGeometry(Part.LineSegment(V(-11.1, 11, 0), V(-11.1, 22, 0)), False)
sketch14.addGeometry(Part.LineSegment(V(-11.1, 22, 0), V(-18.9, 22, 0)), False)
sketch14.addConstraint(Sketcher.Constraint("Coincident", 0, 2, 1, 1))
sketch14.addConstraint(Sketcher.Constraint("Coincident", 1, 2, 2, 1))
sketch14.addConstraint(Sketcher.Constraint("Coincident", 2, 2, 3, 1))
sketch14.addConstraint(Sketcher.Constraint("Coincident", 3, 2, 0, 1))
sketch14.addConstraint(Sketcher.Constraint("Vertical", 0))
sketch14.addConstraint(Sketcher.Constraint("Horizontal", 1))
sketch14.addConstraint(Sketcher.Constraint("Vertical", 2))
sketch14.addConstraint(Sketcher.Constraint("Horizontal", 3))
sketch14.addConstraint(Sketcher.Constraint("DistanceY", 0, 2, 0, 1, 11.0))
sketch14.addConstraint(Sketcher.Constraint("DistanceX", 1, 1, 1, 2, 7.8))
sketch14.addConstraint(Sketcher.Constraint("DistanceY", -1, 1, 0, 2, 11.0))
sketch14.addConstraint(Sketcher.Constraint("DistanceX", 0, 2, -1, 1, 18.9))
sketch14.setExpression("Constraints[8]", "Params.sketch14_height")
sketch14.setExpression("Constraints[9]", "Params.sketch14_width")
pad14 = body15.newObject("PartDesign::Pad", "Pad013")
pad14.Profile = sketch14
pad14.setExpression("Length", "Params.pad14_length")
body16 = doc.addObject("PartDesign::Body", "Body015")
body16.AllowCompound = True

sketch15 = body16.newObject("Sketcher::SketchObject", "Sketch014")
sketch15.AttachmentSupport = (doc.getObject("XY_Plane015"), [""])
sketch15.MapMode = "FlatFace"
sketch15.AttachmentOffset = App.Placement(V(0, 0, 28), App.Rotation())
sketch15.addGeometry(Part.LineSegment(V(-18.9, 1, 0), V(-18.9, -2.75, 0)), False)
sketch15.addGeometry(Part.LineSegment(V(-18.9, -2.75, 0), V(-11.1, -2.75, 0)), False)
sketch15.addGeometry(Part.LineSegment(V(-11.1, -2.75, 0), V(-11.1, 1, 0)), False)
sketch15.addGeometry(Part.LineSegment(V(-11.1, 1, 0), V(-18.9, 1, 0)), False)
sketch15.addConstraint(Sketcher.Constraint("Coincident", 0, 2, 1, 1))
sketch15.addConstraint(Sketcher.Constraint("Coincident", 1, 2, 2, 1))
sketch15.addConstraint(Sketcher.Constraint("Coincident", 2, 2, 3, 1))
sketch15.addConstraint(Sketcher.Constraint("Coincident", 3, 2, 0, 1))
sketch15.addConstraint(Sketcher.Constraint("Vertical", 0))
sketch15.addConstraint(Sketcher.Constraint("Horizontal", 1))
sketch15.addConstraint(Sketcher.Constraint("Vertical", 2))
sketch15.addConstraint(Sketcher.Constraint("Horizontal", 3))
sketch15.addConstraint(Sketcher.Constraint("DistanceX", 1, 1, 1, 2, 7.8))
sketch15.addConstraint(Sketcher.Constraint("DistanceY", -1, 1, 2, 2, 1.0))
sketch15.addConstraint(Sketcher.Constraint("DistanceY", 0, 2, 0, 1, 3.75))
sketch15.addConstraint(Sketcher.Constraint("DistanceX", 0, 2, -1, 1, 18.9))
sketch15.setExpression("Constraints[8]", "Params.sketch15_width")
sketch15.setExpression("Constraints[10]", "Params.sketch15_height")
pad15 = body16.newObject("PartDesign::Pad", "Pad014")
pad15.Profile = sketch15
pad15.setExpression("Length", "Params.pad15_length")
doc.recompute()

boolean9 = body16.newObject("PartDesign::Boolean", "Boolean008")
boolean9.Type = "Fuse"
boolean9.addObjects([body15])
doc.recompute()

chamfer12 = body16.newObject("PartDesign::Chamfer", "Chamfer011")
chamfer12.Base = (boolean9, edges_at(boolean9, [(-18.9, -0.875, 29), (-18.9, 16.5, 29)]))
chamfer12.setExpression("Size", "Params.chamfer12_size")
doc.recompute()

boolean10 = body16.newObject("PartDesign::Boolean", "Boolean009")
boolean10.Type = "Fuse"
boolean10.addObjects([body14])
doc.recompute()

chamfer13 = body16.newObject("PartDesign::Chamfer", "Chamfer012")
chamfer13.Base = (boolean10, edges_at(boolean10, [
    (-26, -2.75, 27),
    (-2, -2.75, 27),
    (-26, -2.375, 24.5),
    (-2, -2.375, 24.5),
    (-2, -2, 7.5),
    (-26, -2, 7.5),
    (-26, -1, -9),
    (-2, -1, -9),
    (-26, 8, -10),
    (-2, 8, -10),
    (-2, 18, 7.5),
    (-26, 18, 7.5),
    (-26, 17, -9),
    (-2, 17, -9),
    (-26, 20, 24.5),
    (-2, 20, 24.5),
    (-26, 22, 27),
    (-26, 13, 4),
    (-26, 15.5, 2),
    (-26, 16, 14),
    (-26, 15.5, 26),
    (-26, 13, 24),
    (-26, 11, 14),
    (-2, 13, 4),
    (-2, 11, 14),
    (-2, 15.5, 2),
    (-2, 13, 24),
    (-2, 16, 14),
    (-2, 15.5, 26),
    (-2, 22, 27),
]))
chamfer13.setExpression("Size", "Params.chamfer13_size")
doc.recompute()

boolean11 = body16.newObject("PartDesign::Boolean", "Boolean010")
boolean11.Type = "Fuse"
boolean11.addObjects([body10])
doc.recompute()

boolean12 = body16.newObject("PartDesign::Boolean", "Boolean011")
boolean12.Type = "Cut"
boolean12.addObjects([body9])
doc.recompute()

boolean13 = body16.newObject("PartDesign::Boolean", "Boolean012")
boolean13.Type = "Cut"
boolean13.addObjects([body6])
doc.recompute()

boolean14 = body16.newObject("PartDesign::Boolean", "Boolean013")
boolean14.Type = "Cut"
boolean14.addObjects([body4])
doc.recompute()

chamfer14 = body16.newObject("PartDesign::Chamfer", "Chamfer013")
chamfer14.Base = (boolean14, edges_at(boolean14, [(-26, 13, -7), (-18.15, 6, -10), (1, 13, -7.55)]))
chamfer14.setExpression("Size", "Params.chamfer14_size")
doc.recompute()

boolean15 = body16.newObject("PartDesign::Boolean", "Boolean014")
boolean15.Type = "Fuse"
boolean15.addObjects([body3])
body17 = doc.addObject("PartDesign::Body", "Body016")

sketch16 = body17.newObject("Sketcher::SketchObject", "Sketch015")
sketch16.AttachmentSupport = (doc.getObject("XY_Plane016"), [""])
sketch16.MapMode = "FlatFace"
sketch16.AttachmentOffset = App.Placement(V(0, 0, -14), App.Rotation())
sketch16.addGeometry(Part.LineSegment(V(-18.9, 33, 0), V(-18.9, 32, 0)), False)
sketch16.addGeometry(Part.LineSegment(V(-18.9, 32, 0), V(-11.1, 32, 0)), False)
sketch16.addGeometry(Part.LineSegment(V(-11.1, 32, 0), V(-11.1, 33, 0)), False)
sketch16.addGeometry(Part.LineSegment(V(-11.1, 33, 0), V(-18.9, 33, 0)), False)
sketch16.addConstraint(Sketcher.Constraint("Coincident", 0, 2, 1, 1))
sketch16.addConstraint(Sketcher.Constraint("Coincident", 1, 2, 2, 1))
sketch16.addConstraint(Sketcher.Constraint("Coincident", 2, 2, 3, 1))
sketch16.addConstraint(Sketcher.Constraint("Coincident", 3, 2, 0, 1))
sketch16.addConstraint(Sketcher.Constraint("Vertical", 0))
sketch16.addConstraint(Sketcher.Constraint("Horizontal", 1))
sketch16.addConstraint(Sketcher.Constraint("Vertical", 2))
sketch16.addConstraint(Sketcher.Constraint("Horizontal", 3))
sketch16.addConstraint(Sketcher.Constraint("DistanceY", 0, 2, 0, 1, 1.0))
sketch16.addConstraint(Sketcher.Constraint("DistanceX", 1, 1, 1, 2, 7.8))
sketch16.addConstraint(Sketcher.Constraint("DistanceY", -1, 1, 0, 2, 32.0))
sketch16.addConstraint(Sketcher.Constraint("DistanceX", 0, 2, -1, 1, 18.9))
sketch16.setExpression("Constraints[8]", "Params.sketch16_height")
sketch16.setExpression("Constraints[9]", "Params.sketch16_width")
pad16 = body17.newObject("PartDesign::Pad", "Pad015")
pad16.Profile = sketch16
pad16.setExpression("Length", "Params.pad16_length")
doc.recompute()

chamfer15 = body17.newObject("PartDesign::Chamfer", "Chamfer014")
chamfer15.Base = (pad16, edges_at(pad16, [(-18.9, 33, -10.5)]))
chamfer15.setExpression("Size", "Params.chamfer15_size")
doc.recompute()

boolean16 = body17.newObject("PartDesign::Boolean", "Boolean015")
boolean16.Type = "Fuse"
boolean16.addObjects([body16])
body18 = doc.addObject("PartDesign::Body", "Body017")

sketch17 = body18.newObject("Sketcher::SketchObject", "Sketch016")
sketch17.AttachmentSupport = (doc.getObject("XY_Plane017"), [""])
sketch17.MapMode = "FlatFace"
sketch17.AttachmentOffset = App.Placement(V(0, 0, -7), App.Rotation())
sketch17.addGeometry(Part.LineSegment(V(-26, 23, 0), V(-26, 13, 0)), False)
sketch17.addGeometry(Part.LineSegment(V(-26, 13, 0), V(-2, 13, 0)), False)
sketch17.addGeometry(Part.LineSegment(V(-2, 13, 0), V(-2, 23, 0)), False)
sketch17.addGeometry(Part.LineSegment(V(-2, 23, 0), V(-26, 23, 0)), False)
sketch17.addConstraint(Sketcher.Constraint("Coincident", 0, 2, 1, 1))
sketch17.addConstraint(Sketcher.Constraint("Coincident", 1, 2, 2, 1))
sketch17.addConstraint(Sketcher.Constraint("Coincident", 2, 2, 3, 1))
sketch17.addConstraint(Sketcher.Constraint("Coincident", 3, 2, 0, 1))
sketch17.addConstraint(Sketcher.Constraint("Vertical", 0))
sketch17.addConstraint(Sketcher.Constraint("Horizontal", 1))
sketch17.addConstraint(Sketcher.Constraint("Vertical", 2))
sketch17.addConstraint(Sketcher.Constraint("Horizontal", 3))
sketch17.addConstraint(Sketcher.Constraint("DistanceX", 1, 1, 1, 2, 24.0))
sketch17.addConstraint(Sketcher.Constraint("DistanceY", 0, 2, 0, 1, 10.0))
sketch17.addConstraint(Sketcher.Constraint("DistanceX", 0, 2, -1, 1, 26.0))
sketch17.addConstraint(Sketcher.Constraint("DistanceY", -1, 1, 0, 2, 13.0))
sketch17.setExpression("Constraints[8]", "Params.sketch17_width")
sketch17.setExpression("Constraints[9]", "Params.sketch17_height")
pad17 = body18.newObject("PartDesign::Pad", "Pad016")
pad17.Profile = sketch17
pad17.setExpression("Length", "Params.pad17_length")
doc.recompute()

chamfer16 = body18.newObject("PartDesign::Chamfer", "Chamfer015")
chamfer16.Base = (pad17, edges_at(pad17, [(-14, 23, 3)]))
chamfer16.setExpression("Size", "Params.chamfer16_size")
body19 = doc.addObject("PartDesign::Body", "Body018")
doc.recompute()

body18.Placement = App.Placement(V(0, 2, 2), App.Rotation(V(0, 0, 1), 0))
boolean17 = body19.newObject("PartDesign::Boolean", "Boolean016")
boolean17.Type = "Fuse"
boolean17.addObjects([body18])
body20 = doc.addObject("PartDesign::Body", "Body019")

sketch18 = body20.newObject("Sketcher::SketchObject", "Sketch017")
sketch18.AttachmentSupport = (doc.getObject("XY_Plane019"), [""])
sketch18.MapMode = "FlatFace"
sketch18.AttachmentOffset = App.Placement(V(0, 0, -3), App.Rotation())
sketch18.addGeometry(Part.LineSegment(V(-26, 27, 0), V(-26, 17, 0)), False)
sketch18.addGeometry(Part.LineSegment(V(-26, 17, 0), V(-2, 17, 0)), False)
sketch18.addGeometry(Part.LineSegment(V(-2, 17, 0), V(-2, 27, 0)), False)
sketch18.addGeometry(Part.LineSegment(V(-2, 27, 0), V(-26, 27, 0)), False)
sketch18.addConstraint(Sketcher.Constraint("Coincident", 0, 2, 1, 1))
sketch18.addConstraint(Sketcher.Constraint("Coincident", 1, 2, 2, 1))
sketch18.addConstraint(Sketcher.Constraint("Coincident", 2, 2, 3, 1))
sketch18.addConstraint(Sketcher.Constraint("Coincident", 3, 2, 0, 1))
sketch18.addConstraint(Sketcher.Constraint("Vertical", 0))
sketch18.addConstraint(Sketcher.Constraint("Horizontal", 1))
sketch18.addConstraint(Sketcher.Constraint("Vertical", 2))
sketch18.addConstraint(Sketcher.Constraint("Horizontal", 3))
sketch18.addConstraint(Sketcher.Constraint("DistanceX", 1, 1, 1, 2, 24.0))
sketch18.addConstraint(Sketcher.Constraint("DistanceY", 0, 2, 0, 1, 10.0))
sketch18.addConstraint(Sketcher.Constraint("DistanceX", 0, 2, -1, 1, 26.0))
sketch18.addConstraint(Sketcher.Constraint("DistanceY", -1, 1, 0, 2, 17.0))
sketch18.setExpression("Constraints[8]", "Params.sketch18_width")
sketch18.setExpression("Constraints[9]", "Params.sketch18_height")
pad18 = body20.newObject("PartDesign::Pad", "Pad017")
pad18.Profile = sketch18
pad18.setExpression("Length", "Params.pad18_length")
doc.recompute()

chamfer17 = body20.newObject("PartDesign::Chamfer", "Chamfer016")
chamfer17.Base = (pad18, edges_at(pad18, [(-14, 27, 7)]))
chamfer17.setExpression("Size", "Params.chamfer17_size")
doc.recompute()

boolean18 = body20.newObject("PartDesign::Boolean", "Boolean017")
boolean18.Type = "Cut"
boolean18.addObjects([body19])
doc.recompute()

chamfer18 = body20.newObject("PartDesign::Chamfer", "Chamfer017")
chamfer18.Base = (boolean18, edges_at(boolean18, [
    (-26, 22.5, 2.5),
    (-26, 25.5, -3),
    (-26, 20.5, 0.5),
    (-26, 17, 5.5),
    (-2, 22.5, 2.5),
    (-2, 25.5, -3),
    (-2, 20.5, 0.5),
    (-2, 17, 5.5),
]))
chamfer18.setExpression("Size", "Params.chamfer18_size")
doc.recompute()

boolean19 = body20.newObject("PartDesign::Boolean", "Boolean018")
boolean19.Type = "Fuse"
boolean19.addObjects([body17])

doc.recompute()
